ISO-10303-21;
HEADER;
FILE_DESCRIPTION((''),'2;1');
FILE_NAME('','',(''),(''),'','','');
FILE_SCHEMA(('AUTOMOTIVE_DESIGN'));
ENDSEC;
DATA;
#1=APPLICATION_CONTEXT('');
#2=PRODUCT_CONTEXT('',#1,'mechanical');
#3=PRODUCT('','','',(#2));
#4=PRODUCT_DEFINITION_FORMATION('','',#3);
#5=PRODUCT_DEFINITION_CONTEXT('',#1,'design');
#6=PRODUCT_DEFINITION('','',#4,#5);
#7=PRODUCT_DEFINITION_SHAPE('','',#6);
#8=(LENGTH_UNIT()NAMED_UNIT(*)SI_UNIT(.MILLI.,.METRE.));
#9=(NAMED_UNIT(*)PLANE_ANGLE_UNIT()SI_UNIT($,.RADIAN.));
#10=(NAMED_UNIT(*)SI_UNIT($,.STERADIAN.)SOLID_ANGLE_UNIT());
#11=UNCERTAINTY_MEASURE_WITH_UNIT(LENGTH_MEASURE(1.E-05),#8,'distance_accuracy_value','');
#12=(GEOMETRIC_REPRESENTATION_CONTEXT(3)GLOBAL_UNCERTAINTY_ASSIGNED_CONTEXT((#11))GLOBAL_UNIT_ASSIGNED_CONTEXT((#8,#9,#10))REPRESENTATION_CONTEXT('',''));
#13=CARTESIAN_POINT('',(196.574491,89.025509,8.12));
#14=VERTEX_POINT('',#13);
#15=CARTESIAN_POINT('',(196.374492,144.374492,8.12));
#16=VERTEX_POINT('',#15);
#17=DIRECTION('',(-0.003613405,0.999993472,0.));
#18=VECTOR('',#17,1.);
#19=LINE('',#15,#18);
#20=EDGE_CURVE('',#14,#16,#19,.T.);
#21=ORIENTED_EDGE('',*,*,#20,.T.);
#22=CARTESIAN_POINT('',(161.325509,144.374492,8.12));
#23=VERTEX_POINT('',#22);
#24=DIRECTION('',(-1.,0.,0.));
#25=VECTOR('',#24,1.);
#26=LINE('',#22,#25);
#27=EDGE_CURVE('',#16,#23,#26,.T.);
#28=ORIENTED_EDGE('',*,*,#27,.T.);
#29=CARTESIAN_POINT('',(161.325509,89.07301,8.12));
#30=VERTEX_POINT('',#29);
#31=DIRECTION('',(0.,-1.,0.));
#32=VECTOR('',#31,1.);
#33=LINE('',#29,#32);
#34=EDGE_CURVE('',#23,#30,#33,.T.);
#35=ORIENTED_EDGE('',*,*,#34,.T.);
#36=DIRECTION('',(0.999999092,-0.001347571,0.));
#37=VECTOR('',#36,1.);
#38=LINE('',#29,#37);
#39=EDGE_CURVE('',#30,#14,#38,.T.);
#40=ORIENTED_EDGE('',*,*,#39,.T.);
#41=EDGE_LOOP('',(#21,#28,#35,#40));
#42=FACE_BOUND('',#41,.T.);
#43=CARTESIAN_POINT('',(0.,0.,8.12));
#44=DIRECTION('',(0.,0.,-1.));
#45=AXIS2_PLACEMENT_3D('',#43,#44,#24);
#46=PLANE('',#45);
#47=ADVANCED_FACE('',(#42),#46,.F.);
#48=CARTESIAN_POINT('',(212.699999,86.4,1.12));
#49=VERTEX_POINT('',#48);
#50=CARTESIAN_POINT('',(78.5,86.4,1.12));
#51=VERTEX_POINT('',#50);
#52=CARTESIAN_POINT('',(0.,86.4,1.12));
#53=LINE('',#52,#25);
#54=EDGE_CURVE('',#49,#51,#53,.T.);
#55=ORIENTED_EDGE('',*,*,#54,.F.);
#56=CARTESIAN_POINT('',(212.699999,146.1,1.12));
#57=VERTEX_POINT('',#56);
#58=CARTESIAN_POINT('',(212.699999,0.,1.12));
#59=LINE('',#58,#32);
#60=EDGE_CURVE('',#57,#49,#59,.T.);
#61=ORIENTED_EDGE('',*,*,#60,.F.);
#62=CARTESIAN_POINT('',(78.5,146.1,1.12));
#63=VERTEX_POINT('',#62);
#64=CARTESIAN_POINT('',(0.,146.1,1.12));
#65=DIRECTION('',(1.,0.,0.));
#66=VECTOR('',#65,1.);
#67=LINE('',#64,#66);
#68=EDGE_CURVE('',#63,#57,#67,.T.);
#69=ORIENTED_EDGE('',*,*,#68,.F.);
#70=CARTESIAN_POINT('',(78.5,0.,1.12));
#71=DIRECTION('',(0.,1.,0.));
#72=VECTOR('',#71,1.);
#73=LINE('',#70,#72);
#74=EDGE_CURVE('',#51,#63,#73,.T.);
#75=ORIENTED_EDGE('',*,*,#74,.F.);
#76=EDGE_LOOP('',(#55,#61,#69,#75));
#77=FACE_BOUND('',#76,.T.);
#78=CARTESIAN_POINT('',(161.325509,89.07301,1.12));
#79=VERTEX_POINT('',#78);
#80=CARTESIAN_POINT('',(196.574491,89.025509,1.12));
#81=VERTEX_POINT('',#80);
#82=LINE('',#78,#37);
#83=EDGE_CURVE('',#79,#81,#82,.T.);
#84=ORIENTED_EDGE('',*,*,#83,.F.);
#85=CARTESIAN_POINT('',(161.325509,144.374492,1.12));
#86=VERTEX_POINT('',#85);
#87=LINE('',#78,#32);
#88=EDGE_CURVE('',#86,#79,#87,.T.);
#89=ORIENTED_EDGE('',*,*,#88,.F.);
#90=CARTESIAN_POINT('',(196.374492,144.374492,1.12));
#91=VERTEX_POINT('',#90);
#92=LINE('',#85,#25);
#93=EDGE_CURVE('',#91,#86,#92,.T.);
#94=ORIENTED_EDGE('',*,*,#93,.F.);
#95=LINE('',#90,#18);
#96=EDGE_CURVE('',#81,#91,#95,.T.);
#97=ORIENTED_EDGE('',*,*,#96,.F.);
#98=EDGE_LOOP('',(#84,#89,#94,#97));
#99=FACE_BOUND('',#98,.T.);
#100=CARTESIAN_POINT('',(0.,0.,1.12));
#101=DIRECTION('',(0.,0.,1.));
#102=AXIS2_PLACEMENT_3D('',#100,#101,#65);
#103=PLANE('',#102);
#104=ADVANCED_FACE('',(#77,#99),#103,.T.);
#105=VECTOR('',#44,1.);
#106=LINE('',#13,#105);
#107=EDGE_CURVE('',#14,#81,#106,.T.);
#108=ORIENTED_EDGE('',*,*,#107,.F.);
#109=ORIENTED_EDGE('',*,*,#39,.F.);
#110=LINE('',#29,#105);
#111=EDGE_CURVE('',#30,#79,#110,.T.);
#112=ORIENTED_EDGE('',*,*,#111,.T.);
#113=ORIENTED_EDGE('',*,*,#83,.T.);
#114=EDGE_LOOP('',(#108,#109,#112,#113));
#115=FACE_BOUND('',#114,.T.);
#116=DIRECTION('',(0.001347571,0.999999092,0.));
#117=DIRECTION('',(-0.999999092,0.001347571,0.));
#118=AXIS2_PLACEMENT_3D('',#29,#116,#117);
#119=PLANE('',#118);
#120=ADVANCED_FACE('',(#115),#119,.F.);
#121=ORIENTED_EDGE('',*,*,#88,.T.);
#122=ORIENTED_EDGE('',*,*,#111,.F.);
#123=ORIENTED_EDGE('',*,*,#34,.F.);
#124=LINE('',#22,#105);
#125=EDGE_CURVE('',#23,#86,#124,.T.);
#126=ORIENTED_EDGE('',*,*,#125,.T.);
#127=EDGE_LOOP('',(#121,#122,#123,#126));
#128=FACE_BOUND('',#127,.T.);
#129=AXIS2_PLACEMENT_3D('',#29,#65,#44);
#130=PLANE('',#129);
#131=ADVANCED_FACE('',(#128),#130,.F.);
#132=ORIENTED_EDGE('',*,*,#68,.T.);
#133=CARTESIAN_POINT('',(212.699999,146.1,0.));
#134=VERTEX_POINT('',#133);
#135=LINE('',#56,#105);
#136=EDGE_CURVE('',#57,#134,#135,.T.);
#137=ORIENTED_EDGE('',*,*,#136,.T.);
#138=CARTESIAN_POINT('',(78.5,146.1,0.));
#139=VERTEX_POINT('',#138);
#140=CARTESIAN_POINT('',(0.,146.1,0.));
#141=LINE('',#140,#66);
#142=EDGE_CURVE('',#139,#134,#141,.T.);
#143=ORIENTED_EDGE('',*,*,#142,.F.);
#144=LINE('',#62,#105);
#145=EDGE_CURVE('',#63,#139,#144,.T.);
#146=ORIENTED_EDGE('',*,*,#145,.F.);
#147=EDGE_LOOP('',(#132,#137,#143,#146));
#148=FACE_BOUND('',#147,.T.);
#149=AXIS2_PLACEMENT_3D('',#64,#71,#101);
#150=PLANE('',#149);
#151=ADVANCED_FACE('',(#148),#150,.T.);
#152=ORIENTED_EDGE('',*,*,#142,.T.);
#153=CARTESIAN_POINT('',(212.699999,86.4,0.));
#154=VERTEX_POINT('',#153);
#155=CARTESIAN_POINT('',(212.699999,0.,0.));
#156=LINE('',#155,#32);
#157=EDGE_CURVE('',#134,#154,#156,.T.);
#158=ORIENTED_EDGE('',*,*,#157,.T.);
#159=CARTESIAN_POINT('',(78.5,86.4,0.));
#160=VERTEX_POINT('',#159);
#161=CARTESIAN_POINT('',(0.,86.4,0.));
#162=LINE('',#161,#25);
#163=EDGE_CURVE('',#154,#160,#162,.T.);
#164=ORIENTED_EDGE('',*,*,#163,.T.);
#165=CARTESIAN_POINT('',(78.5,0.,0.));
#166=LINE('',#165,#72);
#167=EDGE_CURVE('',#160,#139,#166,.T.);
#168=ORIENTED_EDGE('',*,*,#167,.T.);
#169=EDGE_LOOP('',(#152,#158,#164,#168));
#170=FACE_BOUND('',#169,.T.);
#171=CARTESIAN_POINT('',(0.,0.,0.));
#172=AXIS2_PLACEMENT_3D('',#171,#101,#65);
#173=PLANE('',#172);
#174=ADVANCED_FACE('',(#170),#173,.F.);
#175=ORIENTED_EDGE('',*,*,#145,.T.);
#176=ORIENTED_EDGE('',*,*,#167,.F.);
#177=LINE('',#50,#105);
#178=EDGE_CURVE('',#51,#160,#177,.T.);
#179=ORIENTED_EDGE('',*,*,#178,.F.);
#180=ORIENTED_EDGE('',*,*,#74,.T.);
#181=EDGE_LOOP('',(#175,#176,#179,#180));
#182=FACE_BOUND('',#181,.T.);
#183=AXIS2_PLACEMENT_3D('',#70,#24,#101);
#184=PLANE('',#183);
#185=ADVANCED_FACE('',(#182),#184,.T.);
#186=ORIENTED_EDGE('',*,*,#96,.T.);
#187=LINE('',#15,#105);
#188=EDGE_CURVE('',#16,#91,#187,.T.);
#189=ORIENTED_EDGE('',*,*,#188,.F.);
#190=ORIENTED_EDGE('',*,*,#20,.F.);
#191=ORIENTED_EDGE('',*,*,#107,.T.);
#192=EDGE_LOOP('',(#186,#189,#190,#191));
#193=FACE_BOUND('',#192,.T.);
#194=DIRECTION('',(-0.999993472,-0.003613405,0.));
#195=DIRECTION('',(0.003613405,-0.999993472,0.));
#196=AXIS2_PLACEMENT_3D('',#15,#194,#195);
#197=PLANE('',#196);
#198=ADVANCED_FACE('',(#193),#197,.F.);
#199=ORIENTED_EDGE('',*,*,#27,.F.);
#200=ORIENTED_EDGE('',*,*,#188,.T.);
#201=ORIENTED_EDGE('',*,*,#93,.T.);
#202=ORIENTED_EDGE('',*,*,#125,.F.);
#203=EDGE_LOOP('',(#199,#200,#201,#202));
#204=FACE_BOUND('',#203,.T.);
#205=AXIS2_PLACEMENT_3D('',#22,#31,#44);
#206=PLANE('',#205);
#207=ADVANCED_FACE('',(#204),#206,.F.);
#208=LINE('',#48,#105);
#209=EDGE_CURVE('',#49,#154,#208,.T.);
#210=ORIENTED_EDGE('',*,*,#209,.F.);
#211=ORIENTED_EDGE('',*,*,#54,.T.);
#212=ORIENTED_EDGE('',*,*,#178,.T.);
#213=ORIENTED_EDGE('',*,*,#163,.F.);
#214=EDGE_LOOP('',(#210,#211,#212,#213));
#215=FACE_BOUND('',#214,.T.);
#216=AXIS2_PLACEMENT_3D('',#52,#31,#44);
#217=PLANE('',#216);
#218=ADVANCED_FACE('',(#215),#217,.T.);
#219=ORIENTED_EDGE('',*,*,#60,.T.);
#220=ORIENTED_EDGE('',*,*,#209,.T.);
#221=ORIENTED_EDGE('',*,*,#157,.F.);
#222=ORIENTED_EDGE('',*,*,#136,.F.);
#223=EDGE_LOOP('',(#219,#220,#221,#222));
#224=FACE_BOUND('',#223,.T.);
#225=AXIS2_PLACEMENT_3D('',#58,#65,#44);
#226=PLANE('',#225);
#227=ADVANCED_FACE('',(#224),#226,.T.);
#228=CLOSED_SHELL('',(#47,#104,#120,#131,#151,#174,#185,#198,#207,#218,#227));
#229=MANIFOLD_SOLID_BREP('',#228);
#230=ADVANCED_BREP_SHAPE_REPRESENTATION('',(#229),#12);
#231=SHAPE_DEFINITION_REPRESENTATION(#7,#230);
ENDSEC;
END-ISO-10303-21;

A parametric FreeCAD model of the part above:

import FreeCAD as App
import Part
import Sketcher

V = App.Vector

doc = App.newDocument("Part")
body = doc.addObject("PartDesign::Body", "Body")

# Sketch on XY plane
sketch1 = body.newObject("Sketcher::SketchObject", "Sketch")
sketch1.AttachmentSupport = (doc.getObject("XY_Plane"), [""])
sketch1.MapMode = "FlatFace"
sketch1.addGeometry(Part.LineSegment(V(78.5, 146.1, 0), V(78.5, 86.4, 0)), False)
sketch1.addGeometry(Part.LineSegment(V(78.5, 86.4, 0), V(212.699999, 86.4, 0)), False)
sketch1.addGeometry(Part.LineSegment(V(212.699999, 86.4, 0), V(212.699999, 146.1, 0)), False)
sketch1.addGeometry(Part.LineSegment(V(212.699999, 146.1, 0), V(78.5, 146.1, 0)), False)
sketch1.addConstraint(Sketcher.Constraint("Coincident", 0, 2, 1, 1))
sketch1.addConstraint(Sketcher.Constraint("Coincident", 1, 2, 2, 1))
sketch1.addConstraint(Sketcher.Constraint("Coincident", 2, 2, 3, 1))
sketch1.addConstraint(Sketcher.Constraint("Coincident", 3, 2, 0, 1))
sketch1.addConstraint(Sketcher.Constraint("Vertical", 0))
sketch1.addConstraint(Sketcher.Constraint("Horizontal", 1))
sketch1.addConstraint(Sketcher.Constraint("Vertical", 2))
sketch1.addConstraint(Sketcher.Constraint("Horizontal", 3))
sketch1.addConstraint(Sketcher.Constraint("DistanceX", 1, 1, 1, 2, 134.199998))
sketch1.addConstraint(Sketcher.Constraint("DistanceY", 0, 2, 0, 1, 59.7))
sketch1.addConstraint(Sketcher.Constraint("DistanceX", -1, 1, 0, 2, 78.5))
sketch1.addConstraint(Sketcher.Constraint("DistanceY", -1, 1, 0, 2, 86.4))
pad1 = body.newObject("PartDesign::Pad", "Pad")
pad1.Profile = sketch1
pad1.Length = 1.12

# Sketch on XY plane
sketch2 = body.newObject("Sketcher::SketchObject", "Sketch001")
sketch2.AttachmentSupport = (doc.getObject("XY_Plane"), [""])
sketch2.MapMode = "FlatFace"
sketch2.AttachmentOffset = App.Placement(V(0, 0, 1.12), App.Rotation())
sketch2.addGeometry(Part.LineSegment(V(161.325509, 89.07301, 0), V(196.574491, 89.025509, 0)), False)
sketch2.addGeometry(Part.LineSegment(V(196.574491, 89.025509, 0), V(196.374492, 144.374492, 0)), False)
sketch2.addGeometry(Part.LineSegment(V(196.374492, 144.374492, 0), V(161.325509, 144.374492, 0)), False)
sketch2.addGeometry(Part.LineSegment(V(161.325509, 144.374492, 0), V(161.325509, 89.07301, 0)), False)
sketch2.addConstraint(Sketcher.Constraint("Coincident", 0, 2, 1, 1))
sketch2.addConstraint(Sketcher.Constraint("Coincident", 1, 2, 2, 1))
sketch2.addConstraint(Sketcher.Constraint("Coincident", 2, 2, 3, 1))
sketch2.addConstraint(Sketcher.Constraint("Coincident", 3, 2, 0, 1))
sketch2.addConstraint(Sketcher.Constraint("Horizontal", 2))
sketch2.addConstraint(Sketcher.Constraint("Vertical", 3))
sketch2.addConstraint(Sketcher.Constraint("DistanceX", 1, 2, 0, 2, 0.2))
sketch2.addConstraint(Sketcher.Constraint("DistanceY", 3, 2, 3, 1, 55.301482))
sketch2.addConstraint(Sketcher.Constraint("DistanceY", 0, 2, 3, 2, 0.047501))
sketch2.addConstraint(Sketcher.Constraint("DistanceX", 2, 2, 2, 1, 35.048982))
sketch2.addConstraint(Sketcher.Constraint("DistanceX", -1, 1, 0, 2, 196.574491))
sketch2.addConstraint(Sketcher.Constraint("DistanceY", -1, 1, 0, 2, 89.025509))
pad2 = body.newObject("PartDesign::Pad", "Pad001")
pad2.Profile = sketch2
pad2.Length = 7

doc.recompute()
